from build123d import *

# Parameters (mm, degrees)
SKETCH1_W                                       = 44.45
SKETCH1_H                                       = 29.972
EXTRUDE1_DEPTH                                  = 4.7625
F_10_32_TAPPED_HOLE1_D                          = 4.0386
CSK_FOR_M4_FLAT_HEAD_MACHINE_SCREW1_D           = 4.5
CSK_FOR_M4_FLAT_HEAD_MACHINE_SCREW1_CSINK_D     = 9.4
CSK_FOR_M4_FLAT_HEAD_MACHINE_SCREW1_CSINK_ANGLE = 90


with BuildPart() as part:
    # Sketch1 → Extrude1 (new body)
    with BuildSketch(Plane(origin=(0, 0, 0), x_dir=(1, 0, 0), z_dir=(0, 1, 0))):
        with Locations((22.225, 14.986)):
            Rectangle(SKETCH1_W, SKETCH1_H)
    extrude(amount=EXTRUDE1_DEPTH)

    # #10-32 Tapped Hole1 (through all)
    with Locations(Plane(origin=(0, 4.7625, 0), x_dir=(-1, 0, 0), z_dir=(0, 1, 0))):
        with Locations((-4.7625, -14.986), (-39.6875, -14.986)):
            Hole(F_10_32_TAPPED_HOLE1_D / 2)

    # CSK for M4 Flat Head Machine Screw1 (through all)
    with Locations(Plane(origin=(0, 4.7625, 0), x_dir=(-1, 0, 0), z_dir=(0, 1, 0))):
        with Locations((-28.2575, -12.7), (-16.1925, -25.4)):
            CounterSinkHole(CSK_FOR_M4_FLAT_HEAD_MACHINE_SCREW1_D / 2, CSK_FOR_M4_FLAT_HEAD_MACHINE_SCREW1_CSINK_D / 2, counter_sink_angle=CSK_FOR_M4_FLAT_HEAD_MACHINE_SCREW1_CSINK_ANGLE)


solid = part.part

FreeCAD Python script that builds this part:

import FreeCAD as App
import Part
import Sketcher
Q = App.Units.Quantity

doc = App.newDocument("Part")
body = doc.addObject("PartDesign::Body", "Body")

# Sketch on XZ plane
sketch1 = doc.addObject("Sketcher::SketchObject", "Sketch")
body.addObject(sketch1)
sketch1.AttachmentSupport = (doc.XZ_Plane, [""])
sketch1.MapMode = "FlatFace"
sketch1.addGeometry([
    Part.LineSegment(App.Vector(0, -30, 0), App.Vector(0, 0, 0)),
    Part.LineSegment(App.Vector(0, 0, 0), App.Vector(44, 0, 0)),
    Part.LineSegment(App.Vector(44, 0, 0), App.Vector(44, -30, 0)),
    Part.LineSegment(App.Vector(44, -30, 0), App.Vector(0, -30, 0)),
], False)
sketch1.addConstraint([
    Sketcher.Constraint("Coincident", 0, 2, 1, 1),
    Sketcher.Constraint("Coincident", 1, 2, 2, 1),
    Sketcher.Constraint("Coincident", 2, 2, 3, 1),
    Sketcher.Constraint("Coincident", 3, 2, 0, 1),
    Sketcher.Constraint("Vertical", 0),
    Sketcher.Constraint("Horizontal", 1),
    Sketcher.Constraint("Vertical", 2),
    Sketcher.Constraint("Horizontal", 3),
    Sketcher.Constraint("Coincident", 0, 2, -1, 1),
    Sketcher.Constraint("DistanceX", 1, 1, 1, 2, Q("1.75 in")),
    Sketcher.Constraint("DistanceY", 0, 1, 0, 2, Q("1.18 in")),
])
pad1 = doc.addObject("PartDesign::Pad", "Pad")
body.addObject(pad1)
pad1.Profile = sketch1
pad1.Length = Q("0.1875 in")
pad1.Reversed = True

# Sketch on XZ plane
sketch2 = doc.addObject("Sketcher::SketchObject", "Sketch001")
body.addObject(sketch2)
sketch2.AttachmentSupport = (doc.XZ_Plane, [""])
sketch2.MapMode = "FlatFace"
sketch2.AttachmentOffset = App.Placement(App.Vector(0, 0, -0.1875 * 25.4), App.Rotation())
sketch2.addGeometry([
    Part.Circle(App.Vector(4.8, -15, 0), App.Vector(0, 0, 1), 2),
    Part.Circle(App.Vector(39.7, -15, 0), App.Vector(0, 0, 1), 2),
], False)
sketch2.addConstraint([
    Sketcher.Constraint("Equal", 0, 1),
    Sketcher.Constraint("Horizontal", 0, 3, 1, 3),
    Sketcher.Constraint("Diameter", 0, Q("0.159 in")),
    Sketcher.Constraint("DistanceY", 0, 3, -1, 1, Q("0.59 in")),
    Sketcher.Constraint("DistanceX", -1, 1, 0, 3, Q("0.1875 in")),
    Sketcher.Constraint("DistanceX", -1, 1, 1, 3, Q("1.5625 in")),
])
doc.recompute()
hole = doc.addObject("PartDesign::Hole", "Hole")
body.addObject(hole)
hole.Profile = sketch2
hole.ThreadType = "None"
hole.Diameter = Q("0.159 in")
hole.DepthType = "ThroughAll"
hole.Reversed = True

# Sketch on XZ plane
sketch3 = doc.addObject("Sketcher::SketchObject", "Sketch002")
body.addObject(sketch3)
sketch3.AttachmentSupport = (doc.XZ_Plane, [""])
sketch3.MapMode = "FlatFace"
sketch3.AttachmentOffset = App.Placement(App.Vector(0, 0, -0.1875 * 25.4), App.Rotation())
sketch3.addGeometry([
    Part.Circle(App.Vector(28.3, -12.7, 0), App.Vector(0, 0, 1), 2.2),
    Part.Circle(App.Vector(16.2, -25.4, 0), App.Vector(0, 0, 1), 2.2),
], False)
sketch3.addConstraint([
    Sketcher.Constraint("Equal", 0, 1),
    Sketcher.Constraint("DistanceY", 1, 3, -1, 1, Q("1 in")),
    Sketcher.Constraint("DistanceY", 0, 3, -1, 1, Q("0.5 in")),
    Sketcher.Constraint("Diameter", 0, 4.5),
    Sketcher.Constraint("DistanceX", 1, 3, 0, 3, Q("0.475 in")),
    Sketcher.Constraint("DistanceX", -1, 1, 0, 3, Q("1.1125 in")),
])
doc.recompute()
hole2 = doc.addObject("PartDesign::Hole", "Hole001")
body.addObject(hole2)
hole2.Profile = sketch3
hole2.ThreadType = "None"
hole2.Diameter = 4.5
hole2.DepthType = "ThroughAll"
hole2.HoleCutType = "Countersink"
hole2.HoleCutDiameter = 9.4
hole2.HoleCutCountersinkAngle = 90
hole2.Reversed = True

doc.recompute()
